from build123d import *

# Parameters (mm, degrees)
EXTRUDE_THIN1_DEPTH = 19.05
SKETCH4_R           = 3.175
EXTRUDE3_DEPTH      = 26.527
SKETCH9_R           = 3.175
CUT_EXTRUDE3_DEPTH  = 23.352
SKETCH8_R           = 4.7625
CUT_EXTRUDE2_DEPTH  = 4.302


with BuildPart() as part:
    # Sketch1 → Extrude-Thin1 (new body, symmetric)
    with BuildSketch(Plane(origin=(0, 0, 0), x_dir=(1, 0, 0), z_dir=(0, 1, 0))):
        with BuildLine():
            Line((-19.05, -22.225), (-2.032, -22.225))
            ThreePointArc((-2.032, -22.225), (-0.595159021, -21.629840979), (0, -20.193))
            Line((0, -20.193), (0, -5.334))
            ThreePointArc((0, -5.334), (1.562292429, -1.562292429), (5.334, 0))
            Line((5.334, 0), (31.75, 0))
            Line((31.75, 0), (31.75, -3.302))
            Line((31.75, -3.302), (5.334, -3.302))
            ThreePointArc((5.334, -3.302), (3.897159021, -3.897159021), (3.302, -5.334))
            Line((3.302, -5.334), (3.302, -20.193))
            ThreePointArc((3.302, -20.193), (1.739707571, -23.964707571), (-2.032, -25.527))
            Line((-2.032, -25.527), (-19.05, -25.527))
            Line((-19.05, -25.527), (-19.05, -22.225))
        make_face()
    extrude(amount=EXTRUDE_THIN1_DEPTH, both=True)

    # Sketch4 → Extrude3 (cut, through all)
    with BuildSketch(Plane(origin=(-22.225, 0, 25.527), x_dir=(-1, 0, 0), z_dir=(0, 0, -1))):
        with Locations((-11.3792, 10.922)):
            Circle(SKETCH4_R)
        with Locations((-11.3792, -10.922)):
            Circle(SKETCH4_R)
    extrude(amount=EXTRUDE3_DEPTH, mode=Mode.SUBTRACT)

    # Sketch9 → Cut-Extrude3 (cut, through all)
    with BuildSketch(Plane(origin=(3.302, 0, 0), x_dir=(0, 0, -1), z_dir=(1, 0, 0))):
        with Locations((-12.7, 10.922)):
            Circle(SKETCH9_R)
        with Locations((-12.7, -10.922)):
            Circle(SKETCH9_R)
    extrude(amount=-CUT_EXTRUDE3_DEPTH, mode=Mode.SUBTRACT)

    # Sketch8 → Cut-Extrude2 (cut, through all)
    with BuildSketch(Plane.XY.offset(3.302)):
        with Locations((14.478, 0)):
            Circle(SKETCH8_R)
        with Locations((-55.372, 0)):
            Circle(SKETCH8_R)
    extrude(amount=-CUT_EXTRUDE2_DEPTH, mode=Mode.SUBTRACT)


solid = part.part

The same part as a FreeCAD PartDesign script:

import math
import FreeCAD as App
import Part
import Sketcher
from FreeCAD import Vector
Q = App.Units.Quantity

doc = App.newDocument("Part")
body = doc.addObject("PartDesign::Body", "Body")

# Sketch on XZ plane
sketch1 = doc.addObject("Sketcher::SketchObject", "Sketch")
body.addObject(sketch1)
sketch1.AttachmentSupport = (doc.XZ_Plane, [""])
sketch1.MapMode = "FlatFace"
sketch1.addGeometry([
    Part.LineSegment(Vector(-2.032, 22.225, 0), Vector(-19.05, 22.225, 0)),  # 0
    Part.LineSegment(Vector(-19.05, 22.225, 0), Vector(-19.05, 25.527, 0)),  # 1
    Part.LineSegment(Vector(-19.05, 25.527, 0), Vector(-2.032, 25.527, 0)),  # 2
    Part.ArcOfCircle(Part.Circle(Vector(-2.032, 20.193, 0), Vector(0, 0, 1), 5.334), math.radians(0), math.radians(90)),  # 3
    Part.LineSegment(Vector(3.302, 20.193, 0), Vector(3.302, 5.334, 0)),  # 4
    Part.ArcOfCircle(Part.Circle(Vector(5.334, 5.334, 0), Vector(0, 0, 1), 2.032), math.radians(-180), math.radians(-90)),  # 5
    Part.LineSegment(Vector(5.334, 3.302, 0), Vector(31.75, 3.302, 0)),  # 6
    Part.LineSegment(Vector(31.75, 3.302, 0), Vector(31.75, 0, 0)),  # 7
    Part.LineSegment(Vector(31.75, 0, 0), Vector(5.334, 0, 0)),  # 8
    Part.ArcOfCircle(Part.Circle(Vector(5.334, 5.334, 0), Vector(0, 0, 1), 5.334), math.radians(180), math.radians(270)),  # 9
    Part.LineSegment(Vector(0, 5.334, 0), Vector(0, 20.193, 0)),  # 10
    Part.ArcOfCircle(Part.Circle(Vector(-2.032, 20.193, 0), Vector(0, 0, 1), 2.032), math.radians(0), math.radians(90)),  # 11
], False)
sketch1.addConstraint([
    Sketcher.Constraint("Coincident", 0, 2, 1, 1),
    Sketcher.Constraint("Coincident", 1, 2, 2, 1),
    Sketcher.Constraint("Tangent", 2, 2, 3, 2),
    Sketcher.Constraint("Tangent", 3, 1, 4, 1),
    Sketcher.Constraint("Tangent", 4, 2, 5, 1),
    Sketcher.Constraint("Tangent", 5, 2, 6, 1),
    Sketcher.Constraint("Coincident", 6, 2, 7, 1),
    Sketcher.Constraint("Coincident", 7, 2, 8, 1),
    Sketcher.Constraint("Tangent", 8, 2, 9, 2),
    Sketcher.Constraint("Tangent", 9, 1, 10, 1),
    Sketcher.Constraint("Tangent", 10, 2, 11, 1),
    Sketcher.Constraint("Tangent", 11, 2, 0, 1),
    Sketcher.Constraint("Horizontal", 0),
    Sketcher.Constraint("Vertical", 1),
    Sketcher.Constraint("Horizontal", 2),
    Sketcher.Constraint("Vertical", 4),
    Sketcher.Constraint("Horizontal", 6),
    Sketcher.Constraint("Vertical", 7),
    Sketcher.Constraint("Horizontal", 8),
    Sketcher.Constraint("Vertical", 10),
    Sketcher.Constraint("Coincident", 9, 3, 5, 3),
    Sketcher.Constraint("Coincident", 11, 3, 3, 3),
    Sketcher.Constraint("Equal", 3, 9),
    Sketcher.Constraint("PointOnObject", 7, 2, -1),
    Sketcher.Constraint("PointOnObject", 9, 1, -2),
    Sketcher.Constraint("Radius", 3, Q("0.21 in")),
    Sketcher.Constraint("Radius", 5, Q("0.08 in")),
    Sketcher.Constraint("DistanceX", 0, 2, 0, 1, Q("0.67 in")),
    Sketcher.Constraint("DistanceX", 6, 1, 6, 2, Q("1.04 in")),
    Sketcher.Constraint("DistanceY", 4, 2, 4, 1, Q("0.585 in")),
])
pad1 = doc.addObject("PartDesign::Pad", "Pad")
body.addObject(pad1)
pad1.Profile = sketch1
pad1.Length = Q("1.5 in")
pad1.Midplane = True

# Sketch on XY plane
sketch2 = doc.addObject("Sketcher::SketchObject", "Sketch001")
body.addObject(sketch2)
sketch2.AttachmentSupport = (doc.XY_Plane, [""])
sketch2.MapMode = "FlatFace"
sketch2.AttachmentOffset = App.Placement(Vector(0, 0, 1.005 * 25.4), App.Rotation())
sketch2.addGeometry([
    Part.Circle(Vector(-10.8458, 10.922, 0), Vector(0, 0, 1), 3.175),
    Part.Circle(Vector(-10.8458, -10.922, 0), Vector(0, 0, 1), 3.175),
], False)
sketch2.addConstraint([
    Sketcher.Constraint("Equal", 0, 1),
    Sketcher.Constraint("Symmetric", 0, 3, 1, 3, -1),
    Sketcher.Constraint("Diameter", 0, Q("0.25 in")),
    Sketcher.Constraint("DistanceY", -1, 1, 0, 3, Q("0.43 in")),
    Sketcher.Constraint("DistanceX", 0, 3, -1, 1, Q("0.427 in")),
])
pocket1 = doc.addObject("PartDesign::Pocket", "Pocket")
body.addObject(pocket1)
pocket1.Profile = sketch2
pocket1.Type = "ThroughAll"

# Sketch on YZ plane
sketch3 = doc.addObject("Sketcher::SketchObject", "Sketch002")
body.addObject(sketch3)
sketch3.AttachmentSupport = (doc.YZ_Plane, [""])
sketch3.MapMode = "FlatFace"
sketch3.AttachmentOffset = App.Placement(Vector(0, 0, 0.13 * 25.4), App.Rotation())
sketch3.addGeometry([
    Part.Circle(Vector(10.922, 12.7, 0), Vector(0, 0, 1), 3.175),
    Part.Circle(Vector(-10.922, 12.7, 0), Vector(0, 0, 1), 3.175),
], False)
sketch3.addConstraint([
    Sketcher.Constraint("Equal", 0, 1),
    Sketcher.Constraint("Symmetric", 0, 3, 1, 3, -2),
    Sketcher.Constraint("Diameter", 0, Q("0.25 in")),
    Sketcher.Constraint("DistanceY", -1, 1, 0, 3, Q("0.5 in")),
    Sketcher.Constraint("DistanceX", -1, 1, 0, 3, Q("0.43 in")),
])
pocket2 = doc.addObject("PartDesign::Pocket", "Pocket001")
body.addObject(pocket2)
pocket2.Profile = sketch3
pocket2.Type = "ThroughAll"

# Sketch on XY plane
sketch4 = doc.addObject("Sketcher::SketchObject", "Sketch003")
body.addObject(sketch4)
sketch4.AttachmentSupport = (doc.XY_Plane, [""])
sketch4.MapMode = "FlatFace"
sketch4.AttachmentOffset = App.Placement(Vector(0, 0, 0.13 * 25.4), App.Rotation())
sketch4.addGeometry([
    Part.Circle(Vector(14.478, 0, 0), Vector(0, 0, 1), 4.7625),
    Part.Circle(Vector(-55.372, 0, 0), Vector(0, 0, 1), 4.7625),
], False)
sketch4.addConstraint([
    Sketcher.Constraint("Equal", 0, 1),
    Sketcher.Constraint("PointOnObject", 0, 3, -1),
    Sketcher.Constraint("PointOnObject", 1, 3, -1),
    Sketcher.Constraint("Diameter", 0, Q("0.375 in")),
    Sketcher.Constraint("DistanceX", -1, 1, 0, 3, Q("0.57 in")),
    Sketcher.Constraint("DistanceX", 1, 3, -1, 1, Q("2.18 in")),
])
pocket3 = doc.addObject("PartDesign::Pocket", "Pocket002")
body.addObject(pocket3)
pocket3.Profile = sketch4
pocket3.Type = "ThroughAll"

doc.recompute()
